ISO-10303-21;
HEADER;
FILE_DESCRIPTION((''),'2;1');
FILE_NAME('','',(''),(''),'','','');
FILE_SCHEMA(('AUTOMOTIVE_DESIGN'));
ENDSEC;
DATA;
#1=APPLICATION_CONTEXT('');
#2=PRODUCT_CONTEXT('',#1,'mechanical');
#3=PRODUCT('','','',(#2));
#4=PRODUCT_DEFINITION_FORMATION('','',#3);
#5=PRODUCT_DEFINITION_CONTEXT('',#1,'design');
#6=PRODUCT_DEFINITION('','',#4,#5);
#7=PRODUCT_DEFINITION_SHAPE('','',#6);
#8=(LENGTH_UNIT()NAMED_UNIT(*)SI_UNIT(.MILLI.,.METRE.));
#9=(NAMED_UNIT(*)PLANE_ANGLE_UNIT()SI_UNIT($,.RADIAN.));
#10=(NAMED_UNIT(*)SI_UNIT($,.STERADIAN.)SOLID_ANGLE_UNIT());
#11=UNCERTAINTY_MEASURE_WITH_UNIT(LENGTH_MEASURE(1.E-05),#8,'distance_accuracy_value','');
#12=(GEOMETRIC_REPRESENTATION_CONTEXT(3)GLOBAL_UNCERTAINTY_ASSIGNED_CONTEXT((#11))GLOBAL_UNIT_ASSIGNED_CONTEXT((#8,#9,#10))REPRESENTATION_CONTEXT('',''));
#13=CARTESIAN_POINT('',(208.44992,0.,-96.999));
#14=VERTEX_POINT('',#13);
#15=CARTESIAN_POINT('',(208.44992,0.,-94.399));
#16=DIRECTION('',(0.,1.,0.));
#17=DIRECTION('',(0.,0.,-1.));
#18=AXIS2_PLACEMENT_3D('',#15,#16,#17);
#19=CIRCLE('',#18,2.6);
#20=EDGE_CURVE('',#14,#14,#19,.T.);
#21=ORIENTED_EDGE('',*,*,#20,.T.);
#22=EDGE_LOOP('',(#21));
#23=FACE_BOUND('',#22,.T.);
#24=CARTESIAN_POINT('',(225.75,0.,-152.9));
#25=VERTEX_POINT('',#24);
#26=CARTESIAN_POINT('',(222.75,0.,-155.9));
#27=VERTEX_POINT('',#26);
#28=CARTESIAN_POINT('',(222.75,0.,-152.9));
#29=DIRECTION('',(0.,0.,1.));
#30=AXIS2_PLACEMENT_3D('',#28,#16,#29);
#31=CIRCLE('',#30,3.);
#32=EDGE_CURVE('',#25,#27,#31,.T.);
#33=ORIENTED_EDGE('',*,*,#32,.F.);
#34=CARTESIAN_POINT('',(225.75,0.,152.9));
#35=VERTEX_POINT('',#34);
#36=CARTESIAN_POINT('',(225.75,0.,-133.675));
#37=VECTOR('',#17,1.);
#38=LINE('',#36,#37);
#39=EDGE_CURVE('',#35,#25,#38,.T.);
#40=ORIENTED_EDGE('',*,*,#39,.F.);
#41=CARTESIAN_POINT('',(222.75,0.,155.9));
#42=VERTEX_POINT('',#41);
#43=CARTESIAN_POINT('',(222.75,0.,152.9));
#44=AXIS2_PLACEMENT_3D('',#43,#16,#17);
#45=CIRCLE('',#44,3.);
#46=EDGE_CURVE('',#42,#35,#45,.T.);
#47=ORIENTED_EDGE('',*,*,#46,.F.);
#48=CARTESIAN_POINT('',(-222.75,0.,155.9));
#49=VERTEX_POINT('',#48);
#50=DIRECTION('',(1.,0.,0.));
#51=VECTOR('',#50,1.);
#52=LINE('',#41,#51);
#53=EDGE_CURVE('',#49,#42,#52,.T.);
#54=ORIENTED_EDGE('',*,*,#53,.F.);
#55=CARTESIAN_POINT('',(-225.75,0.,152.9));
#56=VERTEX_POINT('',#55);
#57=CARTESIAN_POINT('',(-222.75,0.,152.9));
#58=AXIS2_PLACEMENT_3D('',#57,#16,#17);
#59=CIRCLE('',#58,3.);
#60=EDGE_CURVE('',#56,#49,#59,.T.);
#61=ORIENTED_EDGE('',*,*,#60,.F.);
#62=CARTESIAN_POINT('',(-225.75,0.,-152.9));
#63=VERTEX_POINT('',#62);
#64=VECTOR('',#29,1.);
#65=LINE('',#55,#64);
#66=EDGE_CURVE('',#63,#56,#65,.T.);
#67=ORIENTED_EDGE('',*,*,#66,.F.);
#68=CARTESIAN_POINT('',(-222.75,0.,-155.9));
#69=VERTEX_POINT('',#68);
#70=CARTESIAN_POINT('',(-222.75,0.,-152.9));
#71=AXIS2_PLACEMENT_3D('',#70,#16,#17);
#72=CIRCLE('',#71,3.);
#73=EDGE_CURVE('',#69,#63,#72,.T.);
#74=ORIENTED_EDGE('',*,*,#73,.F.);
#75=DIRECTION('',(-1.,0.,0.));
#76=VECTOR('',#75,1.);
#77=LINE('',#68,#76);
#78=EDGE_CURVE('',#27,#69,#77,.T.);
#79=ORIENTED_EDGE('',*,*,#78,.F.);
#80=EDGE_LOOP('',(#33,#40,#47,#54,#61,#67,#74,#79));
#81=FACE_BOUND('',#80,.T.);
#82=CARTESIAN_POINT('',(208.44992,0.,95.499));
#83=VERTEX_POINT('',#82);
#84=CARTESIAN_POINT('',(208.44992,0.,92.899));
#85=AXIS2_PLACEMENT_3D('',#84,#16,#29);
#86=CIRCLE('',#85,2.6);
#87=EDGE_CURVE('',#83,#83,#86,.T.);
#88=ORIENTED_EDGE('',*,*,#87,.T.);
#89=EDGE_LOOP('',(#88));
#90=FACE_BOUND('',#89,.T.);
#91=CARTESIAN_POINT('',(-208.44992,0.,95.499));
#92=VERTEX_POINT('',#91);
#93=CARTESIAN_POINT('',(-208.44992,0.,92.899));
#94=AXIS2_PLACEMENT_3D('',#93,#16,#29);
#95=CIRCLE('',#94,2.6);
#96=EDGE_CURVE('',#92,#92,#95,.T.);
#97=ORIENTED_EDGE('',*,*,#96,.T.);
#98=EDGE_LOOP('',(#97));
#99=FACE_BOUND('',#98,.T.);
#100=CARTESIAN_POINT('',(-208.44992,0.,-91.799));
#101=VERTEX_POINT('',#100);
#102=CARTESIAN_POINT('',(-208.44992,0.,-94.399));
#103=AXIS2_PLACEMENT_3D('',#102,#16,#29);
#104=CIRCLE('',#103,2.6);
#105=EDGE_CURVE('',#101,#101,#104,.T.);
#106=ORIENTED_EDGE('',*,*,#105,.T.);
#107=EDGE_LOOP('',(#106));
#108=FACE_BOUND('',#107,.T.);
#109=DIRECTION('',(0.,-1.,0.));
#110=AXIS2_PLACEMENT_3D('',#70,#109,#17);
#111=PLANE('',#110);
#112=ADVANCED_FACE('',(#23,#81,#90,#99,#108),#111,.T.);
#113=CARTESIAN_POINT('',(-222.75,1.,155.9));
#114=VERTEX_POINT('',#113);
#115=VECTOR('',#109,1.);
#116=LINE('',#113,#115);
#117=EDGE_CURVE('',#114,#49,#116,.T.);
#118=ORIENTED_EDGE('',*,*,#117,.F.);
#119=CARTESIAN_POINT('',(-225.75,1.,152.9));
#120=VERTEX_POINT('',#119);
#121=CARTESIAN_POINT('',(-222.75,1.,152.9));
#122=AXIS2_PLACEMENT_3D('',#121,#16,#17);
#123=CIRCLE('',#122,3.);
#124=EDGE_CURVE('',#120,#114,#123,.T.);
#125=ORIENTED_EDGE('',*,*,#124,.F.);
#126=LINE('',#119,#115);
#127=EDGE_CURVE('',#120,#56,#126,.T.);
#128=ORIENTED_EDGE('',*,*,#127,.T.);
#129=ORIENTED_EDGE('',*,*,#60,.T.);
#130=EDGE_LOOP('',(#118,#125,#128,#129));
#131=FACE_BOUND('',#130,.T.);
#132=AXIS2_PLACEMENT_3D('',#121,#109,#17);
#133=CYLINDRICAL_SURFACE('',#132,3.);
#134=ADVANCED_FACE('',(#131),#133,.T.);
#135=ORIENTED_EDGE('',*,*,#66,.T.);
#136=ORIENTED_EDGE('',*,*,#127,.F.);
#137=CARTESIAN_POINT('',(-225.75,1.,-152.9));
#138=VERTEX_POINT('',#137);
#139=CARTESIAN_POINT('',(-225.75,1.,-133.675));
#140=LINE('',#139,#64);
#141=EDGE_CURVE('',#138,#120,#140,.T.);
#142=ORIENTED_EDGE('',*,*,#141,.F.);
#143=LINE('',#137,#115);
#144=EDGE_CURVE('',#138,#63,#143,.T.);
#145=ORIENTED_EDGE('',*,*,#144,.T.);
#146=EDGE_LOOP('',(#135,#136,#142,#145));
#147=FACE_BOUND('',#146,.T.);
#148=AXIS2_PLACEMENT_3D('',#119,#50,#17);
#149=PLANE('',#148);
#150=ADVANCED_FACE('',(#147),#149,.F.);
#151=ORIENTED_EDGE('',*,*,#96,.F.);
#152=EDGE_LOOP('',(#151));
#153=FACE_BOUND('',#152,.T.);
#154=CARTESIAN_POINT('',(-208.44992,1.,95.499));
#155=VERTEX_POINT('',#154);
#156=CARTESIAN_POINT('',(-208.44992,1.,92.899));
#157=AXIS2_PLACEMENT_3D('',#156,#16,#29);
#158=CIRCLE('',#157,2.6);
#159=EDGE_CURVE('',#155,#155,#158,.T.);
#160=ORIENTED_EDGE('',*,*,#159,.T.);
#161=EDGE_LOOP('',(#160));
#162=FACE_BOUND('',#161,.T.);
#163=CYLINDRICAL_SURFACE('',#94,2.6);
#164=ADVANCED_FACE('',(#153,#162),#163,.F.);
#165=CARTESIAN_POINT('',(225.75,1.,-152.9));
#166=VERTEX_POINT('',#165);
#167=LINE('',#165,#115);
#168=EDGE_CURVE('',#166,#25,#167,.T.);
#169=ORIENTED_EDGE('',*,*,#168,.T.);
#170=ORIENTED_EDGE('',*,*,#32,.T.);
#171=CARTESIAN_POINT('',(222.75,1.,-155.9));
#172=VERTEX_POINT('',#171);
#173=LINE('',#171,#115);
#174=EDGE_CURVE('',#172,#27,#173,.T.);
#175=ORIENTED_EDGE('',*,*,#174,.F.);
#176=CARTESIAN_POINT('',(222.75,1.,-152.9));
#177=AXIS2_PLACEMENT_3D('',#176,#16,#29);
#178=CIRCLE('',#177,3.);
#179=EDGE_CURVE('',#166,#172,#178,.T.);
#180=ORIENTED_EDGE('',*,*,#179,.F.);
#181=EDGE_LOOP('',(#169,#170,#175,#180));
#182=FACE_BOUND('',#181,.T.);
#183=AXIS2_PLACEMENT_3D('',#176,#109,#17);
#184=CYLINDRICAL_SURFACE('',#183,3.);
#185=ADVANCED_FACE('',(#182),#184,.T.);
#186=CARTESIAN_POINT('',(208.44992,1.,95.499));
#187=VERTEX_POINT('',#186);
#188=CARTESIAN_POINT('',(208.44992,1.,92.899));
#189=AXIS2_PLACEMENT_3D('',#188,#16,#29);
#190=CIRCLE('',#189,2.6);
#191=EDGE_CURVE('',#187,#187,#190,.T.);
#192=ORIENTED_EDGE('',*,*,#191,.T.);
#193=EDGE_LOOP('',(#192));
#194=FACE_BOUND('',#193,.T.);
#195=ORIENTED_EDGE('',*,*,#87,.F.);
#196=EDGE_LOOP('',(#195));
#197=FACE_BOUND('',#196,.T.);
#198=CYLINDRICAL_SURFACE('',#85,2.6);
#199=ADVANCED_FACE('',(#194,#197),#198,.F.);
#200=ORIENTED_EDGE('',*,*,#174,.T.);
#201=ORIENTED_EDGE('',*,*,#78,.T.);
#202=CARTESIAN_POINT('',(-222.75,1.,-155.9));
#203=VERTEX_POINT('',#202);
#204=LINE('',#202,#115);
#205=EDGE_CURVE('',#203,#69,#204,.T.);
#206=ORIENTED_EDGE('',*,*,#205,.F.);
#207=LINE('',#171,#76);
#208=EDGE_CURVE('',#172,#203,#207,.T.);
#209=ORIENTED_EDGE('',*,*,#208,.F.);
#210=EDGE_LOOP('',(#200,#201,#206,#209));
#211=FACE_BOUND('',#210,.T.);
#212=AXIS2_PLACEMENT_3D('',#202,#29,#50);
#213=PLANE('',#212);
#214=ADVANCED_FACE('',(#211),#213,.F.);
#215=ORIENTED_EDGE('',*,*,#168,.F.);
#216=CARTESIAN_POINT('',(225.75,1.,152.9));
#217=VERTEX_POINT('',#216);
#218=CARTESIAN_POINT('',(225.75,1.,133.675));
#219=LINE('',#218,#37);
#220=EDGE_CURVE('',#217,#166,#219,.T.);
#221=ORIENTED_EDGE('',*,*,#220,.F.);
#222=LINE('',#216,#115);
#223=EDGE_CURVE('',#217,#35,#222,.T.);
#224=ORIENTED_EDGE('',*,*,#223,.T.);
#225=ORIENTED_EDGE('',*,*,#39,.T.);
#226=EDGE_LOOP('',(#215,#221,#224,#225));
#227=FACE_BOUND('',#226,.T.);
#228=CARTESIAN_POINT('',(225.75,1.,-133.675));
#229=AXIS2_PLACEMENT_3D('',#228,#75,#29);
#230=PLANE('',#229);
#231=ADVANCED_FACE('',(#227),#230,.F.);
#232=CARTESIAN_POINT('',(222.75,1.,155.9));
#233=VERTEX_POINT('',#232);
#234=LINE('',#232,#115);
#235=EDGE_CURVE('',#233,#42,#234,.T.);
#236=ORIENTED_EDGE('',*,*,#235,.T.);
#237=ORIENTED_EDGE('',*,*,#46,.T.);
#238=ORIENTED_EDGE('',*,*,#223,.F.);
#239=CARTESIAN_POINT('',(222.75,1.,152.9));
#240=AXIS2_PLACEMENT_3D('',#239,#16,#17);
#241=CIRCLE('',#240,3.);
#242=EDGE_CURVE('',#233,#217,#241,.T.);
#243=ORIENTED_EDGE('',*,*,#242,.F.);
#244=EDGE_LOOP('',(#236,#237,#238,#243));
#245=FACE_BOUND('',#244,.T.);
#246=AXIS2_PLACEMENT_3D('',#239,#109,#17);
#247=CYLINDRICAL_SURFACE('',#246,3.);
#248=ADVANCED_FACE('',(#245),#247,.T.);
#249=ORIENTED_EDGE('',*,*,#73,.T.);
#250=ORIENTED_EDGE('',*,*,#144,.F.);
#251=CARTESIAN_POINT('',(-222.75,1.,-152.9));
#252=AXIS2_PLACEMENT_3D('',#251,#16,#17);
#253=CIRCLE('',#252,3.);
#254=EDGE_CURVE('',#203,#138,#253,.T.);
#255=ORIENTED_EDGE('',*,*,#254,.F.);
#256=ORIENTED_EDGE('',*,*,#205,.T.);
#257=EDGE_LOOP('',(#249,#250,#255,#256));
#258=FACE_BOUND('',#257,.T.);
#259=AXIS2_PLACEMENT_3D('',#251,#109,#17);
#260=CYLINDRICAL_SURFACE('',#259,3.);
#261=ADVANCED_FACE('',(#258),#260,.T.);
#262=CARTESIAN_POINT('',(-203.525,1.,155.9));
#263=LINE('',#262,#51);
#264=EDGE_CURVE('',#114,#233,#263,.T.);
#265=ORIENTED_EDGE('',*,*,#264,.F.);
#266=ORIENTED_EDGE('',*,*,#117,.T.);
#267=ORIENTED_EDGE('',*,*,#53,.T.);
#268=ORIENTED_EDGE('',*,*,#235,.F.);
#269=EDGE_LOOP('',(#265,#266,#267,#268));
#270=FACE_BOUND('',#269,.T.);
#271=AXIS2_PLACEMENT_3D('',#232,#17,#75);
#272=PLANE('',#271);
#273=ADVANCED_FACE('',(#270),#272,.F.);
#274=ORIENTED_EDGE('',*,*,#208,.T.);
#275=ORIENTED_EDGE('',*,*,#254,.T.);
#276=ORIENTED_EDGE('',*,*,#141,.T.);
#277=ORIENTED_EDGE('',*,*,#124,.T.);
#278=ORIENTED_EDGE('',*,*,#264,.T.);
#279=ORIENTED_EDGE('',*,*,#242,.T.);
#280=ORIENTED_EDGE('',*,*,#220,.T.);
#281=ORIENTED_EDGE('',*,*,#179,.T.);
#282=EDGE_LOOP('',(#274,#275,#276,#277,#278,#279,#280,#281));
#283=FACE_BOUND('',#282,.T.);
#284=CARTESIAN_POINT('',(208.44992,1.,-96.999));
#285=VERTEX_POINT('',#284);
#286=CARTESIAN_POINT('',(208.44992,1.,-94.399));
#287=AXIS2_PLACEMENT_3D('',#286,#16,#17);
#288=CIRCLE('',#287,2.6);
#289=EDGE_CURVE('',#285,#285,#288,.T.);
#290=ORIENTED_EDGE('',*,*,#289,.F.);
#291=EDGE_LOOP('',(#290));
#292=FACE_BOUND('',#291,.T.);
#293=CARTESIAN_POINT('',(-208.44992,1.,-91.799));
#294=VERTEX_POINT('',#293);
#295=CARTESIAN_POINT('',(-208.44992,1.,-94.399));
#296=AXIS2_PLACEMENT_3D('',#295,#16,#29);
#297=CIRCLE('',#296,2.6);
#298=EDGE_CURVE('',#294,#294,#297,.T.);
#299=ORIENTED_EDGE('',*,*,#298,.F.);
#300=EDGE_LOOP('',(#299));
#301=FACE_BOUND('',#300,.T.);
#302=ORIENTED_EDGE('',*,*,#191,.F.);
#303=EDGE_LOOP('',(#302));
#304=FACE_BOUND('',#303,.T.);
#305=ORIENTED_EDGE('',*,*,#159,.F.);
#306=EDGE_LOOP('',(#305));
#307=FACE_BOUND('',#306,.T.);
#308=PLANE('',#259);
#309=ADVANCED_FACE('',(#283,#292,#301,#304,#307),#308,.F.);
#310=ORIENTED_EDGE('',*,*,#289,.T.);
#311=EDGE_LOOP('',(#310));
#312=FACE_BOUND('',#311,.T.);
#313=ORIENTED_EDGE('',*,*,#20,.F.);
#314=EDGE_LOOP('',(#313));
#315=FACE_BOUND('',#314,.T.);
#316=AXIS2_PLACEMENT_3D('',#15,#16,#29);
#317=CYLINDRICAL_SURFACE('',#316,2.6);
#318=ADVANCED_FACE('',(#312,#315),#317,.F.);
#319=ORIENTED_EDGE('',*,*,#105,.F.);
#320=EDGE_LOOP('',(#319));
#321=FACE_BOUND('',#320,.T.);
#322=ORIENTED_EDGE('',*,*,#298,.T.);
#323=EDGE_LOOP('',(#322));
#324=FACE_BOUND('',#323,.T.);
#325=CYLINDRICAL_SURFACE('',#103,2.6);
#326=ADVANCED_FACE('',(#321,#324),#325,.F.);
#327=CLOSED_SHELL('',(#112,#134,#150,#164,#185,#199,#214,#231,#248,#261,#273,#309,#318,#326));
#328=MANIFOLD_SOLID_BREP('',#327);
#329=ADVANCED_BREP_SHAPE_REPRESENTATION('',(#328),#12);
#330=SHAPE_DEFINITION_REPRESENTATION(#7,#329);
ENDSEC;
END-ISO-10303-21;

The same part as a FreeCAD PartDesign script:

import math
import FreeCAD as App
import Part
import Sketcher

V = App.Vector

doc = App.newDocument("Part")
body = doc.addObject("PartDesign::Body", "Body")

sketch1 = body.newObject("Sketcher::SketchObject", "Sketch")
sketch1.AttachmentSupport = (doc.getObject("XZ_Plane"), [""])
sketch1.MapMode = "FlatFace"
sketch1.addGeometry([
    Part.ArcOfCircle(Part.Circle(V(222.8, -152.9, 0), V(0, 0, 1), 3), math.radians(-90), math.radians(0)),
    Part.LineSegment(V(222.8, -155.9, 0), V(-222.8, -155.9, 0)),
    Part.ArcOfCircle(Part.Circle(V(-222.8, -152.9, 0), V(0, 0, 1), 3), math.radians(180), math.radians(270)),
    Part.LineSegment(V(-225.8, -152.9, 0), V(-225.8, 152.9, 0)),
    Part.ArcOfCircle(Part.Circle(V(-222.8, 152.9, 0), V(0, 0, 1), 3), math.radians(90), math.radians(180)),
    Part.LineSegment(V(-222.8, 155.9, 0), V(222.8, 155.9, 0)),
    Part.ArcOfCircle(Part.Circle(V(222.8, 152.9, 0), V(0, 0, 1), 3), math.radians(0), math.radians(90)),
    Part.LineSegment(V(225.8, 152.9, 0), V(225.8, -152.9, 0)),
], False)
sketch1.addConstraint([
    Sketcher.Constraint("Tangent", 0, 1, 1, 1),
    Sketcher.Constraint("Tangent", 1, 2, 2, 2),
    Sketcher.Constraint("Tangent", 2, 1, 3, 1),
    Sketcher.Constraint("Tangent", 3, 2, 4, 2),
    Sketcher.Constraint("Tangent", 4, 1, 5, 1),
    Sketcher.Constraint("Tangent", 5, 2, 6, 2),
    Sketcher.Constraint("Tangent", 6, 1, 7, 1),
    Sketcher.Constraint("Tangent", 7, 2, 0, 2),
    Sketcher.Constraint("Horizontal", 1),
    Sketcher.Constraint("Vertical", 3),
    Sketcher.Constraint("Horizontal", 5),
    Sketcher.Constraint("Vertical", 7),
    Sketcher.Constraint("Equal", 0, 2),
    Sketcher.Constraint("Equal", 2, 4),
    Sketcher.Constraint("Equal", 4, 6),
    Sketcher.Constraint("Symmetric", 0, 3, 4, 3, -1, 1),
    Sketcher.Constraint("Radius", 0, 3.0),
    Sketcher.Constraint("DistanceX", 1, 2, 1, 1, 445.5),
    Sketcher.Constraint("DistanceY", 3, 1, 3, 2, 305.8),
])
pad1 = body.newObject("PartDesign::Pad", "Pad")
pad1.Profile = sketch1
pad1.Length = 1
pad1.Reversed = True

sketch2 = body.newObject("Sketcher::SketchObject", "Sketch001")
sketch2.AttachmentSupport = (doc.getObject("XZ_Plane"), [""])
sketch2.MapMode = "FlatFace"
sketch2.AttachmentOffset = App.Placement(V(0, 0, -1), App.Rotation())
sketch2.addGeometry([
    Part.Circle(V(-208.4, -94.4, 0), V(0, 0, 1), 2.6),
    Part.Circle(V(208.4, -94.4, 0), V(0, 0, 1), 2.6),
    Part.Circle(V(-208.4, 92.9, 0), V(0, 0, 1), 2.6),
    Part.Circle(V(208.4, 92.9, 0), V(0, 0, 1), 2.6),
], False)
sketch2.addConstraint([
    Sketcher.Constraint("Equal", 0, 1),
    Sketcher.Constraint("Equal", 1, 2),
    Sketcher.Constraint("Equal", 2, 3),
    Sketcher.Constraint("Symmetric", 0, 3, 1, 3, -2),
    Sketcher.Constraint("Symmetric", 2, 3, 3, 3, -2),
    Sketcher.Constraint("Vertical", 0, 3, 2, 3),
    Sketcher.Constraint("Diameter", 0, 5.2),
    Sketcher.Constraint("DistanceY", 0, 3, -1, 1, 94.399),
    Sketcher.Constraint("DistanceY", -1, 1, 2, 3, 92.899),
    Sketcher.Constraint("DistanceX", 0, 3, -1, 1, 208.44992),
])
pocket1 = body.newObject("PartDesign::Pocket", "Pocket")
pocket1.Profile = sketch2
pocket1.Type = "ThroughAll"
pocket1.Reversed = True

doc.recompute()
